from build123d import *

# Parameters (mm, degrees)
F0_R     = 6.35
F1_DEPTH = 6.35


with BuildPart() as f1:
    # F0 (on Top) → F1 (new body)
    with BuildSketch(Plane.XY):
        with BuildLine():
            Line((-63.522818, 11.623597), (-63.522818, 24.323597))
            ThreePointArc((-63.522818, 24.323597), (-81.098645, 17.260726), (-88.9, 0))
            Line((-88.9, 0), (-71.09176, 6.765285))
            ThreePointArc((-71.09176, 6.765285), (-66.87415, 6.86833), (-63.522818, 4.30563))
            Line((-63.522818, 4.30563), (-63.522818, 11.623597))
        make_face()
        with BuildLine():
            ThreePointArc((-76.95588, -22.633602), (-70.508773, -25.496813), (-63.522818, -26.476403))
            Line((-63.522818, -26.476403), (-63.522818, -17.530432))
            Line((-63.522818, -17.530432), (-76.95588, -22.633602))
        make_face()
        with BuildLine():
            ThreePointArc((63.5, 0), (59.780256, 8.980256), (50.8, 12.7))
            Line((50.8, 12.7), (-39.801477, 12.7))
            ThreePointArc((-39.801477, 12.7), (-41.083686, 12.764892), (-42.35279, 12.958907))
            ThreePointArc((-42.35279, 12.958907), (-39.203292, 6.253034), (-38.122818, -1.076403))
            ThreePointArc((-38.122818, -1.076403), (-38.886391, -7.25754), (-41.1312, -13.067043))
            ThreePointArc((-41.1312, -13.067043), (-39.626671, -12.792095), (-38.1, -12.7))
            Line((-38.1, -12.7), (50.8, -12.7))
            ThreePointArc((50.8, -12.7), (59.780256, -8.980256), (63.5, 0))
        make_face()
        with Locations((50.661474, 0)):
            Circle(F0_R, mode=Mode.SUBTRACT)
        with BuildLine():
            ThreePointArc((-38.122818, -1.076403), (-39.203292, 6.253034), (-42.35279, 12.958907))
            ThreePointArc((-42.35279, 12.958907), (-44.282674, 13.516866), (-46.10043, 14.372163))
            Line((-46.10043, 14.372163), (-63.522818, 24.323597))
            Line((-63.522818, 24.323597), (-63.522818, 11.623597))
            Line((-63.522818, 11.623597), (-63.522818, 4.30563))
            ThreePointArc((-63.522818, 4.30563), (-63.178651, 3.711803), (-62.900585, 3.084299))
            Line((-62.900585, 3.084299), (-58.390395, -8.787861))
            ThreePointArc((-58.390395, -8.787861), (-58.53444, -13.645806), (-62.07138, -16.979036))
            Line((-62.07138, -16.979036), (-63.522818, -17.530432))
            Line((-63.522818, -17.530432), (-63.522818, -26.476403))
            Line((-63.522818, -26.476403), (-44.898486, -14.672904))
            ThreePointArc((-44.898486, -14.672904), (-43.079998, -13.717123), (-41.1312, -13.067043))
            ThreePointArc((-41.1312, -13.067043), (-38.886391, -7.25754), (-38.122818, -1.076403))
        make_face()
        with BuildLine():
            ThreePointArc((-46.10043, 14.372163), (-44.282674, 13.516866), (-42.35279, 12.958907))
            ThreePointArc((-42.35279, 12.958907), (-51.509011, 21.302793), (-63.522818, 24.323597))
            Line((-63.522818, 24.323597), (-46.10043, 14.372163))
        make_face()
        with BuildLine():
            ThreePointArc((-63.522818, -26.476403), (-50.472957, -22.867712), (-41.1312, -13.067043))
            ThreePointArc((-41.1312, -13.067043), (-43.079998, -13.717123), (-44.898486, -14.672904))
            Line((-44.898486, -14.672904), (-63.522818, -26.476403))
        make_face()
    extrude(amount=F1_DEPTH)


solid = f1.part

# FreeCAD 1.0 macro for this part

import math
import FreeCAD as App
import Part
import Sketcher
Q = App.Units.Quantity

doc = App.newDocument("Part")
params = doc.addObject("Spreadsheet::Sheet", "Params")
for row, (alias, value) in enumerate([
    ("sketch1_radius", "1 in"),
    ("sketch1_radius2", "1 in"),
    ("sketch1_diameter", "0.5 in"),
    ("sketch1_radius3", "0.5 in"),
    ("sketch1_radius4", "0.25 in"),
    ("pad1_length", "0.25 in"),
], start=1):
    params.set(f"A{row}", alias)
    params.set(f"B{row}", "=" + value)
    params.setAlias(f"B{row}", alias)

body = doc.addObject("PartDesign::Body", "Body")

# Sketch on XY plane
sketch1 = body.newObject("Sketcher::SketchObject", "Sketch")
sketch1.AttachmentSupport = (doc.getObject("XY_Plane"), [""])
sketch1.MapMode = "FlatFace"
sketch1.addGeometry(Part.ArcOfCircle(Part.Circle(App.Vector(-63.522818, -1.076404, 0), App.Vector(0, 0, 1), 25.400001), math.radians(90.000001), math.radians(177.571187)), False)
sketch1.addGeometry(Part.LineSegment(App.Vector(-88.9, 0, 0), App.Vector(-71.09176, 6.765285, 0)), False)
sketch1.addGeometry(Part.ArcOfCircle(Part.Circle(App.Vector(-68.836665, 0.829204, 0), App.Vector(0, 0, 1), 6.350001), math.radians(33.193523), math.radians(110.801593)), False)
sketch1.addGeometry(Part.ArcOfCircle(Part.Circle(App.Vector(-68.836715, 0.829182, 0), App.Vector(0, 0, 1), 6.350054), math.radians(20.801626), math.radians(33.193441)), False)
sketch1.addGeometry(Part.LineSegment(App.Vector(-62.900585, 3.084299, 0), App.Vector(-58.390395, -8.787861, 0)), False)
sketch1.addGeometry(Part.ArcOfCircle(Part.Circle(App.Vector(-64.326475, -11.042956, 0), App.Vector(0, 0, 1), 6.35), math.radians(-69.198397), math.radians(20.801598)), False)
sketch1.addGeometry(Part.LineSegment(App.Vector(-62.07138, -16.979036, 0), App.Vector(-63.522818, -17.530432, 0)), False)
sketch1.addGeometry(Part.LineSegment(App.Vector(-63.522818, -17.530432, 0), App.Vector(-76.95588, -22.633602, 0)), False)
sketch1.addGeometry(Part.ArcOfCircle(Part.Circle(App.Vector(-63.522817, -1.076403, 0), App.Vector(0, 0, 1), 25.4), math.radians(-121.928512), math.radians(-90.000001)), False)
sketch1.addGeometry(Part.ArcOfCircle(Part.Circle(App.Vector(-63.522817, -1.076405, 0), App.Vector(0, 0, 1), 25.399998), math.radians(-90.000003), math.radians(-28.168905)), False)
sketch1.addGeometry(Part.ArcOfCircle(Part.Circle(App.Vector(-38.099995, -25.400044, 0), App.Vector(0, 0, 1), 12.700044), math.radians(90.000022), math.radians(103.808454)), False)
sketch1.addGeometry(Part.LineSegment(App.Vector(-38.1, -12.7, 0), App.Vector(50.8, -12.7, 0)), False)
sketch1.addGeometry(Part.ArcOfCircle(Part.Circle(App.Vector(50.8, 0, 0), App.Vector(0, 0, 1), 12.7), math.radians(-89.999998), math.radians(-0.000002)), False)
sketch1.addGeometry(Part.ArcOfCircle(Part.Circle(App.Vector(50.8, 0, 0), App.Vector(0, 0, 1), 12.7), math.radians(0.000002), math.radians(89.999998)), False)
sketch1.addGeometry(Part.LineSegment(App.Vector(50.8, 12.7, 0), App.Vector(-39.801477, 12.7, 0)), False)
sketch1.addGeometry(Part.ArcOfCircle(Part.Circle(App.Vector(-39.801489, 25.399865, 0), App.Vector(0, 0, 1), 12.699865), math.radians(-101.589123), math.radians(-89.999944)), False)
sketch1.addGeometry(Part.ArcOfCircle(Part.Circle(App.Vector(-63.52282, -1.076408, 0), App.Vector(0, 0, 1), 25.400005), math.radians(33.543598), math.radians(89.999995)), False)
sketch1.addGeometry(Part.Circle(App.Vector(50.661474, 0, 0), App.Vector(0, 0, 1), 6.35), False)
sketch1.addConstraint(Sketcher.Constraint("Coincident", 0, 2, 1, 1))
sketch1.addConstraint(Sketcher.Constraint("Coincident", 1, 2, 2, 2))
sketch1.addConstraint(Sketcher.Constraint("Coincident", 2, 1, 3, 2))
sketch1.addConstraint(Sketcher.Constraint("Coincident", 3, 1, 4, 1))
sketch1.addConstraint(Sketcher.Constraint("Coincident", 4, 2, 5, 2))
sketch1.addConstraint(Sketcher.Constraint("Coincident", 5, 1, 6, 1))
sketch1.addConstraint(Sketcher.Constraint("Coincident", 6, 2, 7, 1))
sketch1.addConstraint(Sketcher.Constraint("Coincident", 7, 2, 8, 1))
sketch1.addConstraint(Sketcher.Constraint("Coincident", 8, 2, 9, 1))
sketch1.addConstraint(Sketcher.Constraint("Coincident", 9, 2, 10, 2))
sketch1.addConstraint(Sketcher.Constraint("Coincident", 10, 1, 11, 1))
sketch1.addConstraint(Sketcher.Constraint("Coincident", 11, 2, 12, 1))
sketch1.addConstraint(Sketcher.Constraint("Coincident", 12, 2, 13, 1))
sketch1.addConstraint(Sketcher.Constraint("Coincident", 13, 2, 14, 1))
sketch1.addConstraint(Sketcher.Constraint("Coincident", 14, 2, 15, 2))
sketch1.addConstraint(Sketcher.Constraint("Coincident", 15, 1, 16, 1))
sketch1.addConstraint(Sketcher.Constraint("Coincident", 16, 2, 0, 1))
sketch1.addConstraint(Sketcher.Constraint("Horizontal", 11))
sketch1.addConstraint(Sketcher.Constraint("Horizontal", 14))
sketch1.addConstraint(Sketcher.Constraint("Coincident", 8, 3, 0, 3))
sketch1.addConstraint(Sketcher.Constraint("Coincident", 9, 3, 0, 3))
sketch1.addConstraint(Sketcher.Constraint("Coincident", 13, 3, 12, 3))
sketch1.addConstraint(Sketcher.Constraint("Coincident", 16, 3, 0, 3))
sketch1.addConstraint(Sketcher.Constraint("PointOnObject", 12, 3, -1))
sketch1.addConstraint(Sketcher.Constraint("PointOnObject", 17, 3, -1))
sketch1.addConstraint(Sketcher.Constraint("PointOnObject", 0, 2, -1))
sketch1.addConstraint(Sketcher.Constraint("PointOnObject", 12, 2, -1))
sketch1.addConstraint(Sketcher.Constraint("Radius", 0, Q("1 in")))
sketch1.addConstraint(Sketcher.Constraint("Radius", 8, Q("1 in")))
sketch1.addConstraint(Sketcher.Constraint("Diameter", 17, Q("0.5 in")))
sketch1.addConstraint(Sketcher.Constraint("Radius", 12, Q("0.5 in")))
sketch1.addConstraint(Sketcher.Constraint("Radius", 2, Q("0.25 in")))
sketch1.addConstraint(Sketcher.Constraint("Radius", 5, Q("0.25 in")))
sketch1.addConstraint(Sketcher.Constraint("DistanceX", 11, 1, 11, 2, Q("3.5 in")))
sketch1.addConstraint(Sketcher.Constraint("DistanceX", -1, 1, 12, 3, Q("2 in")))
sketch1.addConstraint(Sketcher.Constraint("DistanceX", -1, 1, 11, 2, Q("2 in")))
sketch1.addConstraint(Sketcher.Constraint("DistanceX", -1, 1, 13, 2, Q("2 in")))
sketch1.addConstraint(Sketcher.Constraint("Distance", 4, Q("0.5 in")))
sketch1.addConstraint(Sketcher.Constraint("DistanceX", 10, 3, -1, 1, Q("1.4999998 in")))
sketch1.addConstraint(Sketcher.Constraint("DistanceX", 0, 2, -1, 1, Q("3.5 in")))
sketch1.addConstraint(Sketcher.Constraint("Distance", 1, Q("0.75 in")))
sketch1.addConstraint(Sketcher.Constraint("Radius", 3, Q("6.350054 mm")))
sketch1.addConstraint(Sketcher.Constraint("Radius", 10, Q("12.700044 mm")))
sketch1.addConstraint(Sketcher.Constraint("Radius", 15, Q("12.699865 mm")))
sketch1.addConstraint(Sketcher.Constraint("DistanceX", 5, 3, 9, 2, Q("0.9131998 in")))
sketch1.addConstraint(Sketcher.Constraint("DistanceY", -1, 1, 3, 1, Q("3.084299 mm")))
sketch1.addConstraint(Sketcher.Constraint("DistanceY", 7, 2, -1, 1, Q("22.633602 mm")))
sketch1.addConstraint(Sketcher.Constraint("DistanceX", 9, 2, -1, 1, Q("41.1312 mm")))
sketch1.addConstraint(Sketcher.Constraint("DistanceX", 3, 3, 9, 3, Q("5.313898 mm")))
sketch1.addConstraint(Sketcher.Constraint("DistanceX", 7, 2, 5, 1, Q("14.8845 mm")))
sketch1.addConstraint(Sketcher.Constraint("DistanceX", 15, 1, 15, 3, Q("2.551301 mm")))
sketch1.addConstraint(Sketcher.Constraint("DistanceX", 14, 2, 14, 1, Q("90.601477 mm")))
sketch1.addConstraint(Sketcher.Constraint("DistanceX", 1, 2, -1, 1, Q("71.09176 mm")))
sketch1.addConstraint(Sketcher.Constraint("DistanceY", -1, 1, 2, 1, Q("4.30563 mm")))
sketch1.addConstraint(Sketcher.Constraint("DistanceY", 4, 2, -1, 1, Q("8.787861 mm")))
sketch1.addConstraint(Sketcher.Constraint("DistanceX", 2, 3, 5, 3, Q("4.51019 mm")))
sketch1.addConstraint(Sketcher.Constraint("DistanceX", 10, 3, 17, 3, Q("88.761469 mm")))
sketch1.addConstraint(Sketcher.Constraint("DistanceX", 6, 2, 5, 1, Q("1.451438 mm")))
sketch1.addConstraint(Sketcher.Constraint("DistanceY", 6, 2, 4, 2, Q("8.742571 mm")))
sketch1.addConstraint(Sketcher.Constraint("DistanceX", 8, 2, 5, 1, Q("1.451438 mm")))
sketch1.addConstraint(Sketcher.Constraint("DistanceX", 1, 2, 16, 2, Q("7.568942 mm")))
sketch1.setExpression("Constraints[27]", "Params.sketch1_radius")
sketch1.setExpression("Constraints[28]", "Params.sketch1_radius2")
sketch1.setExpression("Constraints[29]", "Params.sketch1_diameter")
sketch1.setExpression("Constraints[30]", "Params.sketch1_radius3")
sketch1.setExpression("Constraints[31]", "Params.sketch1_radius4")
pad1 = body.newObject("PartDesign::Pad", "Pad")
pad1.Profile = sketch1
pad1.setExpression("Length", "Params.pad1_length")

doc.recompute()
